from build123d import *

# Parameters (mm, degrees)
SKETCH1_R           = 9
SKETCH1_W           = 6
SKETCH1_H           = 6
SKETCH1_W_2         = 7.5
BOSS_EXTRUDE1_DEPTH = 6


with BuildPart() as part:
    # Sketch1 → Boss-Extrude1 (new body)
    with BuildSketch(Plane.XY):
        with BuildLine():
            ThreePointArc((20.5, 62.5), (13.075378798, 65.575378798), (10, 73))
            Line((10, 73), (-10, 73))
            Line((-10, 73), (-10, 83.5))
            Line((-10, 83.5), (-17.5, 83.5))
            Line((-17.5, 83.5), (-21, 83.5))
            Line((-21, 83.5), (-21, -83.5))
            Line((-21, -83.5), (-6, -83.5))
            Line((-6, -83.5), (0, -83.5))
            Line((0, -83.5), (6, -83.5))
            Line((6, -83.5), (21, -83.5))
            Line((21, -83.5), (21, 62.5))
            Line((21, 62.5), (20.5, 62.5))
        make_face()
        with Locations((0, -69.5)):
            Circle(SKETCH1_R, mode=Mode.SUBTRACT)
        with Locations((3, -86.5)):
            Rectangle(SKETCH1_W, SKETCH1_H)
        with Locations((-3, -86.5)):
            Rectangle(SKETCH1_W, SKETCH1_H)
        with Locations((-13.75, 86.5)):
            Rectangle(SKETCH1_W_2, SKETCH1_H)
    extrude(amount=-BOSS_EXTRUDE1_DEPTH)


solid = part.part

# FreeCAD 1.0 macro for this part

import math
import FreeCAD as App
import Part
import Sketcher

V = App.Vector

doc = App.newDocument("Part")
body = doc.addObject("PartDesign::Body", "Body")

sketch1 = body.newObject("Sketcher::SketchObject", "Sketch")
sketch1.AttachmentSupport = (doc.getObject("XY_Plane"), [""])
sketch1.MapMode = "FlatFace"
sketch1.addGeometry(Part.ArcOfCircle(Part.Circle(V(20.5, 73, 0), V(0, 0, 1), 10.5), math.radians(-180), math.radians(-90)), False)
sketch1.addGeometry(Part.LineSegment(V(10, 73, 0), V(-10, 73, 0)), False)
sketch1.addGeometry(Part.LineSegment(V(-10, 73, 0), V(-10, 89.5, 0)), False)
sketch1.addGeometry(Part.LineSegment(V(-10, 89.5, 0), V(-17.5, 89.5, 0)), False)
sketch1.addGeometry(Part.LineSegment(V(-17.5, 89.5, 0), V(-17.5, 83.5, 0)), False)
sketch1.addGeometry(Part.LineSegment(V(-17.5, 83.5, 0), V(-21, 83.5, 0)), False)
sketch1.addGeometry(Part.LineSegment(V(-21, 83.5, 0), V(-21, -83.5, 0)), False)
sketch1.addGeometry(Part.LineSegment(V(-21, -83.5, 0), V(-6, -83.5, 0)), False)
sketch1.addGeometry(Part.LineSegment(V(-6, -83.5, 0), V(-6, -89.5, 0)), False)
sketch1.addGeometry(Part.LineSegment(V(-6, -89.5, 0), V(6, -89.5, 0)), False)
sketch1.addGeometry(Part.LineSegment(V(6, -89.5, 0), V(6, -83.5, 0)), False)
sketch1.addGeometry(Part.LineSegment(V(6, -83.5, 0), V(21, -83.5, 0)), False)
sketch1.addGeometry(Part.LineSegment(V(21, -83.5, 0), V(21, 62.5, 0)), False)
sketch1.addGeometry(Part.LineSegment(V(21, 62.5, 0), V(20.5, 62.5, 0)), False)
sketch1.addGeometry(Part.Circle(V(0, -69.5, 0), V(0, 0, 1), 9), False)
sketch1.addConstraint(Sketcher.Constraint("Coincident", 0, 1, 1, 1))
sketch1.addConstraint(Sketcher.Constraint("Coincident", 1, 2, 2, 1))
sketch1.addConstraint(Sketcher.Constraint("Coincident", 2, 2, 3, 1))
sketch1.addConstraint(Sketcher.Constraint("Coincident", 3, 2, 4, 1))
sketch1.addConstraint(Sketcher.Constraint("Coincident", 4, 2, 5, 1))
sketch1.addConstraint(Sketcher.Constraint("Coincident", 5, 2, 6, 1))
sketch1.addConstraint(Sketcher.Constraint("Coincident", 6, 2, 7, 1))
sketch1.addConstraint(Sketcher.Constraint("Coincident", 7, 2, 8, 1))
sketch1.addConstraint(Sketcher.Constraint("Coincident", 8, 2, 9, 1))
sketch1.addConstraint(Sketcher.Constraint("Coincident", 9, 2, 10, 1))
sketch1.addConstraint(Sketcher.Constraint("Coincident", 10, 2, 11, 1))
sketch1.addConstraint(Sketcher.Constraint("Coincident", 11, 2, 12, 1))
sketch1.addConstraint(Sketcher.Constraint("Coincident", 12, 2, 13, 1))
sketch1.addConstraint(Sketcher.Constraint("Tangent", 13, 2, 0, 2))
sketch1.addConstraint(Sketcher.Constraint("Horizontal", 1))
sketch1.addConstraint(Sketcher.Constraint("Vertical", 2))
sketch1.addConstraint(Sketcher.Constraint("Horizontal", 3))
sketch1.addConstraint(Sketcher.Constraint("Vertical", 4))
sketch1.addConstraint(Sketcher.Constraint("Horizontal", 5))
sketch1.addConstraint(Sketcher.Constraint("Vertical", 6))
sketch1.addConstraint(Sketcher.Constraint("Horizontal", 7))
sketch1.addConstraint(Sketcher.Constraint("Vertical", 8))
sketch1.addConstraint(Sketcher.Constraint("Horizontal", 9))
sketch1.addConstraint(Sketcher.Constraint("Vertical", 10))
sketch1.addConstraint(Sketcher.Constraint("Horizontal", 11))
sketch1.addConstraint(Sketcher.Constraint("Vertical", 12))
sketch1.addConstraint(Sketcher.Constraint("Horizontal", 13))
sketch1.addConstraint(Sketcher.Constraint("Symmetric", 5, 2, 11, 2, -1, 1))
sketch1.addConstraint(Sketcher.Constraint("Symmetric", 7, 2, 10, 2, -2))
sketch1.addConstraint(Sketcher.Constraint("PointOnObject", 14, 3, -2))
sketch1.addConstraint(Sketcher.Constraint("Equal", 4, 8))
sketch1.addConstraint(Sketcher.Constraint("Diameter", 14, 18.0))
sketch1.addConstraint(Sketcher.Constraint("Radius", 0, 10.5))
sketch1.addConstraint(Sketcher.Constraint("DistanceX", 1, 2, 1, 1, 20.0))
sketch1.addConstraint(Sketcher.Constraint("DistanceX", 7, 1, 7, 2, 15.0))
sketch1.addConstraint(Sketcher.Constraint("DistanceX", 9, 1, 9, 2, 12.0))
sketch1.addConstraint(Sketcher.Constraint("DistanceY", 4, 2, 4, 1, 6.0))
sketch1.addConstraint(Sketcher.Constraint("DistanceY", 6, 2, 6, 1, 167.0))
sketch1.addConstraint(Sketcher.Constraint("DistanceY", 12, 1, 12, 2, 146.0))
sketch1.addConstraint(Sketcher.Constraint("DistanceX", 3, 2, 3, 1, 7.5))
sketch1.addConstraint(Sketcher.Constraint("DistanceX", 5, 2, 5, 1, 3.5))
sketch1.addConstraint(Sketcher.Constraint("DistanceY", 2, 1, 2, 2, 16.5))
sketch1.addConstraint(Sketcher.Constraint("DistanceY", 14, 3, 2, 2, 159.0))
pad1 = body.newObject("PartDesign::Pad", "Pad")
pad1.Profile = sketch1
pad1.Length = 6
pad1.Reversed = True

doc.recompute()
